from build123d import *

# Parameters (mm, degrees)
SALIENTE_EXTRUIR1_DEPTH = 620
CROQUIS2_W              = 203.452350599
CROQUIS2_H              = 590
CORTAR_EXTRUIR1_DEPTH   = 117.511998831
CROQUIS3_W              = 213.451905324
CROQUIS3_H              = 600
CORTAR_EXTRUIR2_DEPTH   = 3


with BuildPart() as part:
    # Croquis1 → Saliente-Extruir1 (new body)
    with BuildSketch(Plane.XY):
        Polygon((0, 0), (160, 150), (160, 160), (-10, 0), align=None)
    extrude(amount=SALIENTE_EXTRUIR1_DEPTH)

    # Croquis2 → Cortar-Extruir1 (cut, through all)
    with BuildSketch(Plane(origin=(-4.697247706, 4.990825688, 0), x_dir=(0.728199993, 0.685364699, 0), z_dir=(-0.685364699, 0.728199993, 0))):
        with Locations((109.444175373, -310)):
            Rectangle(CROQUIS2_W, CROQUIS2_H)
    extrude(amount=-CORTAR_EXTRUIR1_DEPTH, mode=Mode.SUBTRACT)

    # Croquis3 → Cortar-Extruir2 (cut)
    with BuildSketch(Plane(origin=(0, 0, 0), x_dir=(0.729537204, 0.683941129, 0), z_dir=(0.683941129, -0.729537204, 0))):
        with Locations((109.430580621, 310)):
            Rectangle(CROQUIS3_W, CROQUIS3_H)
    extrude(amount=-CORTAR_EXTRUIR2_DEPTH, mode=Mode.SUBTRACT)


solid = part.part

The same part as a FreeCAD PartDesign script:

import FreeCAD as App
import Part
import Sketcher
Q = App.Units.Quantity

doc = App.newDocument("Part")
body = doc.addObject("PartDesign::Body", "Body")

# Sketch on XY plane
sketch1 = body.newObject("Sketcher::SketchObject", "Sketch")
sketch1.AttachmentSupport = (doc.getObject("XY_Plane"), [""])
sketch1.MapMode = "FlatFace"
sketch1.addGeometry([
    Part.LineSegment(App.Vector(0, 0, 0), App.Vector(160, 150, 0)),
    Part.LineSegment(App.Vector(160, 150, 0), App.Vector(160, 160, 0)),
    Part.LineSegment(App.Vector(160, 160, 0), App.Vector(-10, 0, 0)),
    Part.LineSegment(App.Vector(-10, 0, 0), App.Vector(0, 0, 0)),
], False)
sketch1.addConstraint([
    Sketcher.Constraint("Coincident", 0, 2, 1, 1),
    Sketcher.Constraint("Coincident", 1, 2, 2, 1),
    Sketcher.Constraint("Coincident", 2, 2, 3, 1),
    Sketcher.Constraint("Coincident", 3, 2, 0, 1),
    Sketcher.Constraint("Vertical", 1),
    Sketcher.Constraint("Horizontal", 3),
    Sketcher.Constraint("Coincident", 3, 2, -1, 1),
    Sketcher.Constraint("Equal", 3, 1),
    Sketcher.Constraint("DistanceX", 3, 1, 3, 2, Q("10 mm")),
    Sketcher.Constraint("DistanceX", -1, 1, 0, 2, Q("160 mm")),
    Sketcher.Constraint("DistanceY", -1, 1, 0, 2, Q("150 mm")),
])
pad1 = body.newObject("PartDesign::Pad", "Pad")
pad1.Profile = sketch1
pad1.Length = 620

# Sketch on an angled plane
sketch2 = body.newObject("Sketcher::SketchObject", "Sketch001")
sketch2.Placement = App.Placement(App.Vector(-4.697248, 4.990826, 0), App.Rotation(App.Vector(0.728199993, 0.685364699, 0), App.Vector(0, 0, -1), App.Vector(-0.685364699, 0.728199993, 0), "ZXY"))
sketch2.addGeometry([
    Part.LineSegment(App.Vector(8, -15, 0), App.Vector(8, -605, 0)),
    Part.LineSegment(App.Vector(8, -605, 0), App.Vector(211, -605, 0)),
    Part.LineSegment(App.Vector(211, -605, 0), App.Vector(211, -15, 0)),
    Part.LineSegment(App.Vector(211, -15, 0), App.Vector(8, -15, 0)),
], False)
sketch2.addConstraint([
    Sketcher.Constraint("Coincident", 0, 2, 1, 1),
    Sketcher.Constraint("Coincident", 1, 2, 2, 1),
    Sketcher.Constraint("Coincident", 2, 2, 3, 1),
    Sketcher.Constraint("Coincident", 3, 2, 0, 1),
    Sketcher.Constraint("Vertical", 0),
    Sketcher.Constraint("Horizontal", 1),
    Sketcher.Constraint("Vertical", 2),
    Sketcher.Constraint("Horizontal", 3),
    Sketcher.Constraint("DistanceY", 0, 2, 0, 1, Q("590.000001 mm")),
    Sketcher.Constraint("DistanceY", 0, 2, -1, 1, Q("605.000001 mm")),
    Sketcher.Constraint("DistanceX", -1, 1, 0, 2, Q("7.718 mm")),
    Sketcher.Constraint("DistanceX", 1, 1, 1, 2, Q("203.452351 mm")),
])
pocket1 = body.newObject("PartDesign::Pocket", "Pocket")
pocket1.Profile = sketch2
pocket1.Type = "ThroughAll"

# Sketch on an angled plane
sketch3 = body.newObject("Sketcher::SketchObject", "Sketch002")
sketch3.Placement = App.Placement(App.Vector(0, 0, 0), App.Rotation(App.Vector(0.729537204, 0.683941129, 0), App.Vector(0, 0, 1), App.Vector(0.683941129, -0.729537204, 0), "ZXY"))
sketch3.addGeometry([
    Part.LineSegment(App.Vector(3, 610, 0), App.Vector(3, 10, 0)),
    Part.LineSegment(App.Vector(3, 10, 0), App.Vector(216, 10, 0)),
    Part.LineSegment(App.Vector(216, 10, 0), App.Vector(216, 610, 0)),
    Part.LineSegment(App.Vector(216, 610, 0), App.Vector(3, 610, 0)),
], False)
sketch3.addConstraint([
    Sketcher.Constraint("Coincident", 0, 2, 1, 1),
    Sketcher.Constraint("Coincident", 1, 2, 2, 1),
    Sketcher.Constraint("Coincident", 2, 2, 3, 1),
    Sketcher.Constraint("Coincident", 3, 2, 0, 1),
    Sketcher.Constraint("Vertical", 0),
    Sketcher.Constraint("Horizontal", 1),
    Sketcher.Constraint("Vertical", 2),
    Sketcher.Constraint("Horizontal", 3),
    Sketcher.Constraint("DistanceY", 0, 2, 0, 1, Q("600 mm")),
    Sketcher.Constraint("DistanceY", -1, 1, 0, 2, Q("10 mm")),
    Sketcher.Constraint("DistanceX", 1, 1, 1, 2, Q("213.451905 mm")),
    Sketcher.Constraint("DistanceX", -1, 1, 0, 2, Q("2.704628 mm")),
])
pocket2 = body.newObject("PartDesign::Pocket", "Pocket001")
pocket2.Profile = sketch3
pocket2.Length = 3

doc.recompute()
